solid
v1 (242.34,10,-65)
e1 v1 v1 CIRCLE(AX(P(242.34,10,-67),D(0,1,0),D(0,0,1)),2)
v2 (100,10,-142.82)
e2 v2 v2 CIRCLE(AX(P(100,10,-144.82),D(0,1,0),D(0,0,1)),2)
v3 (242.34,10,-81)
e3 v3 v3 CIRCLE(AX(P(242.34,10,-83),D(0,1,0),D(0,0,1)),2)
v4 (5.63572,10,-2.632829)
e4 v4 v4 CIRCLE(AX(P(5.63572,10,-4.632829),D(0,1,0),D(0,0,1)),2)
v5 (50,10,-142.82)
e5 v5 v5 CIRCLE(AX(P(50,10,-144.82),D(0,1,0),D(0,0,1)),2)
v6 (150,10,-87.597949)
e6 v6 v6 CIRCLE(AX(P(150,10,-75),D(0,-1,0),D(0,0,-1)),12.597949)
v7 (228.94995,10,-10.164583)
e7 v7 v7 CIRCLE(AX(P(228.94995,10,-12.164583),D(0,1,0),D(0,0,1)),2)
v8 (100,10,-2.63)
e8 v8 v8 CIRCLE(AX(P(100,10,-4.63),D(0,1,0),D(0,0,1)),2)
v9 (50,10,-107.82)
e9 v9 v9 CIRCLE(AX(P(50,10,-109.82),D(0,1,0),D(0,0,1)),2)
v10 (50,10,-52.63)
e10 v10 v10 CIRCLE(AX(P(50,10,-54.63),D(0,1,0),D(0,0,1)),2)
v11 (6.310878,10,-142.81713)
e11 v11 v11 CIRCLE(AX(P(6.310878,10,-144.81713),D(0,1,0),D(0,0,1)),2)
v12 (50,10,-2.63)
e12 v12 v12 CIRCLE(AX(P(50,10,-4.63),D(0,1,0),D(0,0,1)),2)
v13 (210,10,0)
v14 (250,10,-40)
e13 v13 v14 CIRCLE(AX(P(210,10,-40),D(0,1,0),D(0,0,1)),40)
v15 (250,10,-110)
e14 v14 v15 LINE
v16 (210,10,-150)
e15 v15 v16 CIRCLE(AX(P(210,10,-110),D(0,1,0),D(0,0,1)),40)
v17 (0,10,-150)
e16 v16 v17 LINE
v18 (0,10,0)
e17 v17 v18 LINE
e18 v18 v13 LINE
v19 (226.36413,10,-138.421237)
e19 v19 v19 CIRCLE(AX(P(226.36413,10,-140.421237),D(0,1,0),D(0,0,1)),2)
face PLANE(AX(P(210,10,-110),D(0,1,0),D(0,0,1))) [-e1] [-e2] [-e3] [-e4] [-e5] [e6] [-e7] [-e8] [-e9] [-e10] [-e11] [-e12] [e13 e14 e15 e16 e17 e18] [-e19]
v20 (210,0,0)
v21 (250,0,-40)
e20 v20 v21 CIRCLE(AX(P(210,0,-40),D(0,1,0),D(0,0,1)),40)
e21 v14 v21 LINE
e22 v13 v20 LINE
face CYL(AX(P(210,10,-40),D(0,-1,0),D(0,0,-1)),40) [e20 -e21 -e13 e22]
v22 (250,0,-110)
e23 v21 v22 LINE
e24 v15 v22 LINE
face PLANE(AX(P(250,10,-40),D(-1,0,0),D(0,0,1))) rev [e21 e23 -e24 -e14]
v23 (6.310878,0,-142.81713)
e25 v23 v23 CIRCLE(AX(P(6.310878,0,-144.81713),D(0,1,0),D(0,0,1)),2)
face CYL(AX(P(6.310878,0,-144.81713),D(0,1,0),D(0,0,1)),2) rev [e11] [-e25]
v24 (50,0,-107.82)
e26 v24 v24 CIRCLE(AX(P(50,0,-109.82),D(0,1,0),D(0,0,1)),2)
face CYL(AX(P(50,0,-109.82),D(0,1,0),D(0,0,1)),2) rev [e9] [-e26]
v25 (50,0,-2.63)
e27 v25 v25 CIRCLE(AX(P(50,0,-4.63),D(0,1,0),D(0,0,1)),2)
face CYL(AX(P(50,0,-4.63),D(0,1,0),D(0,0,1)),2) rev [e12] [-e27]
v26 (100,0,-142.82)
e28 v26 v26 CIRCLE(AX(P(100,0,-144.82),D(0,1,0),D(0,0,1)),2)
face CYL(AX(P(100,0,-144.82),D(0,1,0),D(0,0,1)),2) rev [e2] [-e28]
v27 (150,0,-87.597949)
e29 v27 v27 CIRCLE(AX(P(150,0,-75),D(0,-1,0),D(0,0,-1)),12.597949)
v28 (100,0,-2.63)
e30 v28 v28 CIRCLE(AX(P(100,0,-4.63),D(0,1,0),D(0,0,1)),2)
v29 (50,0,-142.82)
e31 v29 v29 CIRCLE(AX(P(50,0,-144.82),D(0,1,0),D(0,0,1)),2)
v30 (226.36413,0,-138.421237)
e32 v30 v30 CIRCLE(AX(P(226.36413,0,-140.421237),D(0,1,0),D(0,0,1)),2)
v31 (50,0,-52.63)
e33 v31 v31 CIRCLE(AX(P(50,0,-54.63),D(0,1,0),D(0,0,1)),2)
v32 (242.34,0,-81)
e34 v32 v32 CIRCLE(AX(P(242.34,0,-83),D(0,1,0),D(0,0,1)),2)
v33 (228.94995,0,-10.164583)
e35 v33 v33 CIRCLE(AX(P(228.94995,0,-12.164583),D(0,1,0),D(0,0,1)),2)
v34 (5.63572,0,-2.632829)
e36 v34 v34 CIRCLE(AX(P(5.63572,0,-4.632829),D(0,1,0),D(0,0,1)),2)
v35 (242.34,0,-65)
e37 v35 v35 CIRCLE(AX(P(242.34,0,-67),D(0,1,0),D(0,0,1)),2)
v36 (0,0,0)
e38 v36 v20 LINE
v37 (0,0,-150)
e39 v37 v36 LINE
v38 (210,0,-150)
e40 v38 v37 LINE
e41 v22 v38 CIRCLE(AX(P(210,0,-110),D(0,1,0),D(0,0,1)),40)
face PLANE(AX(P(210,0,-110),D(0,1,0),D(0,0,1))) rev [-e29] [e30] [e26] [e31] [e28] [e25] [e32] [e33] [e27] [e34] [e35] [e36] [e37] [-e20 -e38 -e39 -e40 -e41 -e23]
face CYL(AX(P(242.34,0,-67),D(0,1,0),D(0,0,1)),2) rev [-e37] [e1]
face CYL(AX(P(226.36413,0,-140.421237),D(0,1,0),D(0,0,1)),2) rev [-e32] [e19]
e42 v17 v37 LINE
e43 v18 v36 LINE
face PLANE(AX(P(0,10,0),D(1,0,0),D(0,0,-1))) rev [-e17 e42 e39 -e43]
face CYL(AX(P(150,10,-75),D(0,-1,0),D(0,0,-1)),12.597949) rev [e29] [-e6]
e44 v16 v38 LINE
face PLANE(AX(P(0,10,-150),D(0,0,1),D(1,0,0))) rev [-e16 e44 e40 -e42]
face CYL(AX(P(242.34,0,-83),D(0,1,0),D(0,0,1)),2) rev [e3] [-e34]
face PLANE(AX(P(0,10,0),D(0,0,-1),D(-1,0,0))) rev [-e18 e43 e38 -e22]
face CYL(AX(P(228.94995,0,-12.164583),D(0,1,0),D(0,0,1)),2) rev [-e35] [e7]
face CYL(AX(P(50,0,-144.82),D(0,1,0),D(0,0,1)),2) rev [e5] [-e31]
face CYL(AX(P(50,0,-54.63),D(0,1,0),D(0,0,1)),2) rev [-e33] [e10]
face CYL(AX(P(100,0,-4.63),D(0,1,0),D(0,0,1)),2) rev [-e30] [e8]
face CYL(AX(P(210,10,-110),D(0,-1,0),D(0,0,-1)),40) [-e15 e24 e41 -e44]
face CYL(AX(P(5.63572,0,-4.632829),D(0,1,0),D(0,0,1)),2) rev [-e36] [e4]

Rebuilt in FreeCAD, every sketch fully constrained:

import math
import FreeCAD as App
import Part
import Sketcher
from FreeCAD import Vector

doc = App.newDocument("Part")
params = doc.addObject("Spreadsheet::Sheet", "Params")
for row, (alias, value) in enumerate([
    ("sketch1_radius", "40 mm"),
    ("sketch1_width", "210 mm"),
    ("sketch1_height", "70 mm"),
    ("pad1_length", "10 mm"),
    ("sketch3_diameter", "4 mm"),
    ("sketch4_diameter", "4 mm"),
    ("sketch5_diameter", "4 mm"),
    ("sketch6_diameter", "4 mm"),
    ("sketch7_diameter", "4 mm"),
    ("sketch8_diameter", "4 mm"),
], start=1):
    params.set(f"A{row}", alias)
    params.set(f"B{row}", "=" + value)
    params.setAlias(f"B{row}", alias)

body = doc.addObject("PartDesign::Body", "Body")

# Sketch on XZ plane
sketch1 = doc.addObject("Sketcher::SketchObject", "Sketch")
body.addObject(sketch1)
sketch1.AttachmentSupport = (doc.XZ_Plane, [""])
sketch1.MapMode = "FlatFace"
sketch1.addGeometry([
    Part.LineSegment(Vector(0, 0, 0), Vector(210, 0, 0)),  # 0
    Part.ArcOfCircle(Part.Circle(Vector(210, -40, 0), Vector(0, 0, 1), 40), math.radians(0), math.radians(90)),  # 1
    Part.LineSegment(Vector(250, -40, 0), Vector(250, -110, 0)),  # 2
    Part.ArcOfCircle(Part.Circle(Vector(210, -110, 0), Vector(0, 0, 1), 40), math.radians(-90), math.radians(0)),  # 3
    Part.LineSegment(Vector(210, -150, 0), Vector(0, -150, 0)),  # 4
    Part.LineSegment(Vector(0, -150, 0), Vector(0, 0, 0)),  # 5
], False)
sketch1.addConstraint([
    Sketcher.Constraint("Tangent", 0, 2, 1, 2),
    Sketcher.Constraint("Tangent", 1, 1, 2, 1),
    Sketcher.Constraint("Tangent", 2, 2, 3, 2),
    Sketcher.Constraint("Tangent", 3, 1, 4, 1),
    Sketcher.Constraint("Coincident", 4, 2, 5, 1),
    Sketcher.Constraint("Coincident", 5, 2, 0, 1),
    Sketcher.Constraint("Horizontal", 0),
    Sketcher.Constraint("Vertical", 2),
    Sketcher.Constraint("Horizontal", 4),
    Sketcher.Constraint("Vertical", 5),
    Sketcher.Constraint("Coincident", 5, 2, -1, 1),
    Sketcher.Constraint("Equal", 1, 3),
    Sketcher.Constraint("Radius", 1, 40.0),
    Sketcher.Constraint("DistanceX", 0, 1, 0, 2, 210.0),
    Sketcher.Constraint("DistanceY", 2, 2, 2, 1, 70.0),
])
sketch1.setExpression("Constraints[12]", "Params.sketch1_radius")
sketch1.setExpression("Constraints[13]", "Params.sketch1_width")
sketch1.setExpression("Constraints[14]", "Params.sketch1_height")
pad1 = doc.addObject("PartDesign::Pad", "Pad")
body.addObject(pad1)
pad1.Profile = sketch1
pad1.setExpression("Length", "Params.pad1_length")
pad1.Reversed = True

# Sketch on XZ plane
sketch2 = doc.addObject("Sketcher::SketchObject", "Sketch001")
body.addObject(sketch2)
sketch2.AttachmentSupport = (doc.XZ_Plane, [""])
sketch2.MapMode = "FlatFace"
sketch2.addGeometry(Part.Circle(Vector(150, -75, 0), Vector(0, 0, 1), 13), False)
sketch2.addConstraint([
    Sketcher.Constraint("DistanceX", -1, 1, 0, 3, 150.0),
    Sketcher.Constraint("DistanceY", 0, 3, -1, 1, 75.0),
    Sketcher.Constraint("Diameter", 0, 25.195897),
])
pocket1 = doc.addObject("PartDesign::Pocket", "Pocket")
body.addObject(pocket1)
pocket1.Profile = sketch2
pocket1.Type = "ThroughAll"

# Sketch on XZ plane
sketch3 = doc.addObject("Sketcher::SketchObject", "Sketch002")
body.addObject(sketch3)
sketch3.AttachmentSupport = (doc.XZ_Plane, [""])
sketch3.MapMode = "FlatFace"
sketch3.AttachmentOffset = App.Placement(Vector(0, 0, -10), App.Rotation())
sketch3.addGeometry(Part.Circle(Vector(6.3, -144.8, 0), Vector(0, 0, 1), 2), False)
sketch3.addConstraint([
    Sketcher.Constraint("Diameter", 0, 4.0),
    Sketcher.Constraint("DistanceX", -1, 1, 0, 3, 6.310878),
    Sketcher.Constraint("DistanceY", 0, 3, -1, 1, 144.81713),
])
sketch3.setExpression("Constraints[0]", "Params.sketch3_diameter")
pocket2 = doc.addObject("PartDesign::Pocket", "Pocket001")
body.addObject(pocket2)
pocket2.Profile = sketch3
pocket2.Type = "ThroughAll"
pocket2.Reversed = True

# Sketch on XZ plane
sketch4 = doc.addObject("Sketcher::SketchObject", "Sketch003")
body.addObject(sketch4)
sketch4.AttachmentSupport = (doc.XZ_Plane, [""])
sketch4.MapMode = "FlatFace"
sketch4.AttachmentOffset = App.Placement(Vector(0, 0, -10), App.Rotation())
sketch4.addGeometry(Part.Circle(Vector(5.6, -4.6, 0), Vector(0, 0, 1), 2), False)
sketch4.addConstraint([
    Sketcher.Constraint("Diameter", 0, 4.0),
    Sketcher.Constraint("DistanceX", -1, 1, 0, 3, 5.63572),
    Sketcher.Constraint("DistanceY", 0, 3, -1, 1, 4.632829),
])
sketch4.setExpression("Constraints[0]", "Params.sketch4_diameter")
pocket3 = doc.addObject("PartDesign::Pocket", "Pocket002")
body.addObject(pocket3)
pocket3.Profile = sketch4
pocket3.Type = "ThroughAll"
pocket3.Reversed = True

# Sketch on XZ plane
sketch5 = doc.addObject("Sketcher::SketchObject", "Sketch004")
body.addObject(sketch5)
sketch5.AttachmentSupport = (doc.XZ_Plane, [""])
sketch5.MapMode = "FlatFace"
sketch5.AttachmentOffset = App.Placement(Vector(0, 0, -10), App.Rotation())
sketch5.addGeometry(Part.Circle(Vector(226.4, -140.4, 0), Vector(0, 0, 1), 2), False)
sketch5.addConstraint([
    Sketcher.Constraint("Diameter", 0, 4.0),
    Sketcher.Constraint("DistanceX", -1, 1, 0, 3, 226.36413),
    Sketcher.Constraint("DistanceY", 0, 3, -1, 1, 140.421237),
])
sketch5.setExpression("Constraints[0]", "Params.sketch5_diameter")
pocket4 = doc.addObject("PartDesign::Pocket", "Pocket003")
body.addObject(pocket4)
pocket4.Profile = sketch5
pocket4.Type = "ThroughAll"
pocket4.Reversed = True

# Sketch on XZ plane
sketch6 = doc.addObject("Sketcher::SketchObject", "Sketch005")
body.addObject(sketch6)
sketch6.AttachmentSupport = (doc.XZ_Plane, [""])
sketch6.MapMode = "FlatFace"
sketch6.AttachmentOffset = App.Placement(Vector(0, 0, -10), App.Rotation())
sketch6.addGeometry(Part.Circle(Vector(228.9, -12.2, 0), Vector(0, 0, 1), 2), False)
sketch6.addConstraint([
    Sketcher.Constraint("Diameter", 0, 4.0),
    Sketcher.Constraint("DistanceX", -1, 1, 0, 3, 228.94995),
    Sketcher.Constraint("DistanceY", 0, 3, -1, 1, 12.164583),
])
sketch6.setExpression("Constraints[0]", "Params.sketch6_diameter")
pocket5 = doc.addObject("PartDesign::Pocket", "Pocket004")
body.addObject(pocket5)
pocket5.Profile = sketch6
pocket5.Type = "ThroughAll"
pocket5.Reversed = True

# Sketch on XZ plane
sketch7 = doc.addObject("Sketcher::SketchObject", "Sketch006")
body.addObject(sketch7)
sketch7.AttachmentSupport = (doc.XZ_Plane, [""])
sketch7.MapMode = "FlatFace"
sketch7.AttachmentOffset = App.Placement(Vector(0, 0, -10), App.Rotation())
sketch7.addGeometry([
    Part.Circle(Vector(50, -144.8, 0), Vector(0, 0, 1), 2),  # 0
    Part.Circle(Vector(50, -4.6, 0), Vector(0, 0, 1), 2),  # 1
    Part.Circle(Vector(100, -4.6, 0), Vector(0, 0, 1), 2),  # 2
    Part.Circle(Vector(100, -144.8, 0), Vector(0, 0, 1), 2),  # 3
    Part.Circle(Vector(50, -109.8, 0), Vector(0, 0, 1), 2),  # 4
    Part.Circle(Vector(50, -54.6, 0), Vector(0, 0, 1), 2),  # 5
], False)
sketch7.addConstraint([
    Sketcher.Constraint("Equal", 0, 1),
    Sketcher.Constraint("Equal", 1, 2),
    Sketcher.Constraint("Equal", 2, 3),
    Sketcher.Constraint("Equal", 3, 4),
    Sketcher.Constraint("Equal", 4, 5),
    Sketcher.Constraint("Horizontal", 1, 3, 2, 3),
    Sketcher.Constraint("Horizontal", 0, 3, 3, 3),
    Sketcher.Constraint("Vertical", 0, 3, 1, 3),
    Sketcher.Constraint("Vertical", 2, 3, 3, 3),
    Sketcher.Constraint("Vertical", 1, 3, 4, 3),
    Sketcher.Constraint("Vertical", 4, 3, 5, 3),
    Sketcher.Constraint("Diameter", 0, 4.0),
    Sketcher.Constraint("DistanceX", -1, 1, 0, 3, 50.0),
    Sketcher.Constraint("DistanceX", -1, 1, 2, 3, 100.0),
    Sketcher.Constraint("DistanceY", 0, 3, 4, 3, 35.0),
    Sketcher.Constraint("DistanceY", 5, 3, 1, 3, 50.0),
    Sketcher.Constraint("DistanceY", 0, 3, -1, 1, 144.82),
    Sketcher.Constraint("DistanceY", 1, 3, -1, 1, 4.63),
])
sketch7.setExpression("Constraints[11]", "Params.sketch7_diameter")
pocket6 = doc.addObject("PartDesign::Pocket", "Pocket005")
body.addObject(pocket6)
pocket6.Profile = sketch7
pocket6.Type = "ThroughAll"
pocket6.Reversed = True

# Sketch on XZ plane
sketch8 = doc.addObject("Sketcher::SketchObject", "Sketch007")
body.addObject(sketch8)
sketch8.AttachmentSupport = (doc.XZ_Plane, [""])
sketch8.MapMode = "FlatFace"
sketch8.AttachmentOffset = App.Placement(Vector(0, 0, -10), App.Rotation())
sketch8.addGeometry([
    Part.Circle(Vector(242.3, -83, 0), Vector(0, 0, 1), 2),
    Part.Circle(Vector(242.3, -67, 0), Vector(0, 0, 1), 2),
], False)
sketch8.addConstraint([
    Sketcher.Constraint("Equal", 0, 1),
    Sketcher.Constraint("Vertical", 0, 3, 1, 3),
    Sketcher.Constraint("Diameter", 0, 4.0),
    Sketcher.Constraint("DistanceY", 0, 3, -1, 1, 83.0),
    Sketcher.Constraint("DistanceY", 1, 3, -1, 1, 67.0),
    Sketcher.Constraint("DistanceX", -1, 1, 0, 3, 242.34),
])
sketch8.setExpression("Constraints[2]", "Params.sketch8_diameter")
pocket7 = doc.addObject("PartDesign::Pocket", "Pocket006")
body.addObject(pocket7)
pocket7.Profile = sketch8
pocket7.Type = "ThroughAll"
pocket7.Reversed = True

doc.recompute()
